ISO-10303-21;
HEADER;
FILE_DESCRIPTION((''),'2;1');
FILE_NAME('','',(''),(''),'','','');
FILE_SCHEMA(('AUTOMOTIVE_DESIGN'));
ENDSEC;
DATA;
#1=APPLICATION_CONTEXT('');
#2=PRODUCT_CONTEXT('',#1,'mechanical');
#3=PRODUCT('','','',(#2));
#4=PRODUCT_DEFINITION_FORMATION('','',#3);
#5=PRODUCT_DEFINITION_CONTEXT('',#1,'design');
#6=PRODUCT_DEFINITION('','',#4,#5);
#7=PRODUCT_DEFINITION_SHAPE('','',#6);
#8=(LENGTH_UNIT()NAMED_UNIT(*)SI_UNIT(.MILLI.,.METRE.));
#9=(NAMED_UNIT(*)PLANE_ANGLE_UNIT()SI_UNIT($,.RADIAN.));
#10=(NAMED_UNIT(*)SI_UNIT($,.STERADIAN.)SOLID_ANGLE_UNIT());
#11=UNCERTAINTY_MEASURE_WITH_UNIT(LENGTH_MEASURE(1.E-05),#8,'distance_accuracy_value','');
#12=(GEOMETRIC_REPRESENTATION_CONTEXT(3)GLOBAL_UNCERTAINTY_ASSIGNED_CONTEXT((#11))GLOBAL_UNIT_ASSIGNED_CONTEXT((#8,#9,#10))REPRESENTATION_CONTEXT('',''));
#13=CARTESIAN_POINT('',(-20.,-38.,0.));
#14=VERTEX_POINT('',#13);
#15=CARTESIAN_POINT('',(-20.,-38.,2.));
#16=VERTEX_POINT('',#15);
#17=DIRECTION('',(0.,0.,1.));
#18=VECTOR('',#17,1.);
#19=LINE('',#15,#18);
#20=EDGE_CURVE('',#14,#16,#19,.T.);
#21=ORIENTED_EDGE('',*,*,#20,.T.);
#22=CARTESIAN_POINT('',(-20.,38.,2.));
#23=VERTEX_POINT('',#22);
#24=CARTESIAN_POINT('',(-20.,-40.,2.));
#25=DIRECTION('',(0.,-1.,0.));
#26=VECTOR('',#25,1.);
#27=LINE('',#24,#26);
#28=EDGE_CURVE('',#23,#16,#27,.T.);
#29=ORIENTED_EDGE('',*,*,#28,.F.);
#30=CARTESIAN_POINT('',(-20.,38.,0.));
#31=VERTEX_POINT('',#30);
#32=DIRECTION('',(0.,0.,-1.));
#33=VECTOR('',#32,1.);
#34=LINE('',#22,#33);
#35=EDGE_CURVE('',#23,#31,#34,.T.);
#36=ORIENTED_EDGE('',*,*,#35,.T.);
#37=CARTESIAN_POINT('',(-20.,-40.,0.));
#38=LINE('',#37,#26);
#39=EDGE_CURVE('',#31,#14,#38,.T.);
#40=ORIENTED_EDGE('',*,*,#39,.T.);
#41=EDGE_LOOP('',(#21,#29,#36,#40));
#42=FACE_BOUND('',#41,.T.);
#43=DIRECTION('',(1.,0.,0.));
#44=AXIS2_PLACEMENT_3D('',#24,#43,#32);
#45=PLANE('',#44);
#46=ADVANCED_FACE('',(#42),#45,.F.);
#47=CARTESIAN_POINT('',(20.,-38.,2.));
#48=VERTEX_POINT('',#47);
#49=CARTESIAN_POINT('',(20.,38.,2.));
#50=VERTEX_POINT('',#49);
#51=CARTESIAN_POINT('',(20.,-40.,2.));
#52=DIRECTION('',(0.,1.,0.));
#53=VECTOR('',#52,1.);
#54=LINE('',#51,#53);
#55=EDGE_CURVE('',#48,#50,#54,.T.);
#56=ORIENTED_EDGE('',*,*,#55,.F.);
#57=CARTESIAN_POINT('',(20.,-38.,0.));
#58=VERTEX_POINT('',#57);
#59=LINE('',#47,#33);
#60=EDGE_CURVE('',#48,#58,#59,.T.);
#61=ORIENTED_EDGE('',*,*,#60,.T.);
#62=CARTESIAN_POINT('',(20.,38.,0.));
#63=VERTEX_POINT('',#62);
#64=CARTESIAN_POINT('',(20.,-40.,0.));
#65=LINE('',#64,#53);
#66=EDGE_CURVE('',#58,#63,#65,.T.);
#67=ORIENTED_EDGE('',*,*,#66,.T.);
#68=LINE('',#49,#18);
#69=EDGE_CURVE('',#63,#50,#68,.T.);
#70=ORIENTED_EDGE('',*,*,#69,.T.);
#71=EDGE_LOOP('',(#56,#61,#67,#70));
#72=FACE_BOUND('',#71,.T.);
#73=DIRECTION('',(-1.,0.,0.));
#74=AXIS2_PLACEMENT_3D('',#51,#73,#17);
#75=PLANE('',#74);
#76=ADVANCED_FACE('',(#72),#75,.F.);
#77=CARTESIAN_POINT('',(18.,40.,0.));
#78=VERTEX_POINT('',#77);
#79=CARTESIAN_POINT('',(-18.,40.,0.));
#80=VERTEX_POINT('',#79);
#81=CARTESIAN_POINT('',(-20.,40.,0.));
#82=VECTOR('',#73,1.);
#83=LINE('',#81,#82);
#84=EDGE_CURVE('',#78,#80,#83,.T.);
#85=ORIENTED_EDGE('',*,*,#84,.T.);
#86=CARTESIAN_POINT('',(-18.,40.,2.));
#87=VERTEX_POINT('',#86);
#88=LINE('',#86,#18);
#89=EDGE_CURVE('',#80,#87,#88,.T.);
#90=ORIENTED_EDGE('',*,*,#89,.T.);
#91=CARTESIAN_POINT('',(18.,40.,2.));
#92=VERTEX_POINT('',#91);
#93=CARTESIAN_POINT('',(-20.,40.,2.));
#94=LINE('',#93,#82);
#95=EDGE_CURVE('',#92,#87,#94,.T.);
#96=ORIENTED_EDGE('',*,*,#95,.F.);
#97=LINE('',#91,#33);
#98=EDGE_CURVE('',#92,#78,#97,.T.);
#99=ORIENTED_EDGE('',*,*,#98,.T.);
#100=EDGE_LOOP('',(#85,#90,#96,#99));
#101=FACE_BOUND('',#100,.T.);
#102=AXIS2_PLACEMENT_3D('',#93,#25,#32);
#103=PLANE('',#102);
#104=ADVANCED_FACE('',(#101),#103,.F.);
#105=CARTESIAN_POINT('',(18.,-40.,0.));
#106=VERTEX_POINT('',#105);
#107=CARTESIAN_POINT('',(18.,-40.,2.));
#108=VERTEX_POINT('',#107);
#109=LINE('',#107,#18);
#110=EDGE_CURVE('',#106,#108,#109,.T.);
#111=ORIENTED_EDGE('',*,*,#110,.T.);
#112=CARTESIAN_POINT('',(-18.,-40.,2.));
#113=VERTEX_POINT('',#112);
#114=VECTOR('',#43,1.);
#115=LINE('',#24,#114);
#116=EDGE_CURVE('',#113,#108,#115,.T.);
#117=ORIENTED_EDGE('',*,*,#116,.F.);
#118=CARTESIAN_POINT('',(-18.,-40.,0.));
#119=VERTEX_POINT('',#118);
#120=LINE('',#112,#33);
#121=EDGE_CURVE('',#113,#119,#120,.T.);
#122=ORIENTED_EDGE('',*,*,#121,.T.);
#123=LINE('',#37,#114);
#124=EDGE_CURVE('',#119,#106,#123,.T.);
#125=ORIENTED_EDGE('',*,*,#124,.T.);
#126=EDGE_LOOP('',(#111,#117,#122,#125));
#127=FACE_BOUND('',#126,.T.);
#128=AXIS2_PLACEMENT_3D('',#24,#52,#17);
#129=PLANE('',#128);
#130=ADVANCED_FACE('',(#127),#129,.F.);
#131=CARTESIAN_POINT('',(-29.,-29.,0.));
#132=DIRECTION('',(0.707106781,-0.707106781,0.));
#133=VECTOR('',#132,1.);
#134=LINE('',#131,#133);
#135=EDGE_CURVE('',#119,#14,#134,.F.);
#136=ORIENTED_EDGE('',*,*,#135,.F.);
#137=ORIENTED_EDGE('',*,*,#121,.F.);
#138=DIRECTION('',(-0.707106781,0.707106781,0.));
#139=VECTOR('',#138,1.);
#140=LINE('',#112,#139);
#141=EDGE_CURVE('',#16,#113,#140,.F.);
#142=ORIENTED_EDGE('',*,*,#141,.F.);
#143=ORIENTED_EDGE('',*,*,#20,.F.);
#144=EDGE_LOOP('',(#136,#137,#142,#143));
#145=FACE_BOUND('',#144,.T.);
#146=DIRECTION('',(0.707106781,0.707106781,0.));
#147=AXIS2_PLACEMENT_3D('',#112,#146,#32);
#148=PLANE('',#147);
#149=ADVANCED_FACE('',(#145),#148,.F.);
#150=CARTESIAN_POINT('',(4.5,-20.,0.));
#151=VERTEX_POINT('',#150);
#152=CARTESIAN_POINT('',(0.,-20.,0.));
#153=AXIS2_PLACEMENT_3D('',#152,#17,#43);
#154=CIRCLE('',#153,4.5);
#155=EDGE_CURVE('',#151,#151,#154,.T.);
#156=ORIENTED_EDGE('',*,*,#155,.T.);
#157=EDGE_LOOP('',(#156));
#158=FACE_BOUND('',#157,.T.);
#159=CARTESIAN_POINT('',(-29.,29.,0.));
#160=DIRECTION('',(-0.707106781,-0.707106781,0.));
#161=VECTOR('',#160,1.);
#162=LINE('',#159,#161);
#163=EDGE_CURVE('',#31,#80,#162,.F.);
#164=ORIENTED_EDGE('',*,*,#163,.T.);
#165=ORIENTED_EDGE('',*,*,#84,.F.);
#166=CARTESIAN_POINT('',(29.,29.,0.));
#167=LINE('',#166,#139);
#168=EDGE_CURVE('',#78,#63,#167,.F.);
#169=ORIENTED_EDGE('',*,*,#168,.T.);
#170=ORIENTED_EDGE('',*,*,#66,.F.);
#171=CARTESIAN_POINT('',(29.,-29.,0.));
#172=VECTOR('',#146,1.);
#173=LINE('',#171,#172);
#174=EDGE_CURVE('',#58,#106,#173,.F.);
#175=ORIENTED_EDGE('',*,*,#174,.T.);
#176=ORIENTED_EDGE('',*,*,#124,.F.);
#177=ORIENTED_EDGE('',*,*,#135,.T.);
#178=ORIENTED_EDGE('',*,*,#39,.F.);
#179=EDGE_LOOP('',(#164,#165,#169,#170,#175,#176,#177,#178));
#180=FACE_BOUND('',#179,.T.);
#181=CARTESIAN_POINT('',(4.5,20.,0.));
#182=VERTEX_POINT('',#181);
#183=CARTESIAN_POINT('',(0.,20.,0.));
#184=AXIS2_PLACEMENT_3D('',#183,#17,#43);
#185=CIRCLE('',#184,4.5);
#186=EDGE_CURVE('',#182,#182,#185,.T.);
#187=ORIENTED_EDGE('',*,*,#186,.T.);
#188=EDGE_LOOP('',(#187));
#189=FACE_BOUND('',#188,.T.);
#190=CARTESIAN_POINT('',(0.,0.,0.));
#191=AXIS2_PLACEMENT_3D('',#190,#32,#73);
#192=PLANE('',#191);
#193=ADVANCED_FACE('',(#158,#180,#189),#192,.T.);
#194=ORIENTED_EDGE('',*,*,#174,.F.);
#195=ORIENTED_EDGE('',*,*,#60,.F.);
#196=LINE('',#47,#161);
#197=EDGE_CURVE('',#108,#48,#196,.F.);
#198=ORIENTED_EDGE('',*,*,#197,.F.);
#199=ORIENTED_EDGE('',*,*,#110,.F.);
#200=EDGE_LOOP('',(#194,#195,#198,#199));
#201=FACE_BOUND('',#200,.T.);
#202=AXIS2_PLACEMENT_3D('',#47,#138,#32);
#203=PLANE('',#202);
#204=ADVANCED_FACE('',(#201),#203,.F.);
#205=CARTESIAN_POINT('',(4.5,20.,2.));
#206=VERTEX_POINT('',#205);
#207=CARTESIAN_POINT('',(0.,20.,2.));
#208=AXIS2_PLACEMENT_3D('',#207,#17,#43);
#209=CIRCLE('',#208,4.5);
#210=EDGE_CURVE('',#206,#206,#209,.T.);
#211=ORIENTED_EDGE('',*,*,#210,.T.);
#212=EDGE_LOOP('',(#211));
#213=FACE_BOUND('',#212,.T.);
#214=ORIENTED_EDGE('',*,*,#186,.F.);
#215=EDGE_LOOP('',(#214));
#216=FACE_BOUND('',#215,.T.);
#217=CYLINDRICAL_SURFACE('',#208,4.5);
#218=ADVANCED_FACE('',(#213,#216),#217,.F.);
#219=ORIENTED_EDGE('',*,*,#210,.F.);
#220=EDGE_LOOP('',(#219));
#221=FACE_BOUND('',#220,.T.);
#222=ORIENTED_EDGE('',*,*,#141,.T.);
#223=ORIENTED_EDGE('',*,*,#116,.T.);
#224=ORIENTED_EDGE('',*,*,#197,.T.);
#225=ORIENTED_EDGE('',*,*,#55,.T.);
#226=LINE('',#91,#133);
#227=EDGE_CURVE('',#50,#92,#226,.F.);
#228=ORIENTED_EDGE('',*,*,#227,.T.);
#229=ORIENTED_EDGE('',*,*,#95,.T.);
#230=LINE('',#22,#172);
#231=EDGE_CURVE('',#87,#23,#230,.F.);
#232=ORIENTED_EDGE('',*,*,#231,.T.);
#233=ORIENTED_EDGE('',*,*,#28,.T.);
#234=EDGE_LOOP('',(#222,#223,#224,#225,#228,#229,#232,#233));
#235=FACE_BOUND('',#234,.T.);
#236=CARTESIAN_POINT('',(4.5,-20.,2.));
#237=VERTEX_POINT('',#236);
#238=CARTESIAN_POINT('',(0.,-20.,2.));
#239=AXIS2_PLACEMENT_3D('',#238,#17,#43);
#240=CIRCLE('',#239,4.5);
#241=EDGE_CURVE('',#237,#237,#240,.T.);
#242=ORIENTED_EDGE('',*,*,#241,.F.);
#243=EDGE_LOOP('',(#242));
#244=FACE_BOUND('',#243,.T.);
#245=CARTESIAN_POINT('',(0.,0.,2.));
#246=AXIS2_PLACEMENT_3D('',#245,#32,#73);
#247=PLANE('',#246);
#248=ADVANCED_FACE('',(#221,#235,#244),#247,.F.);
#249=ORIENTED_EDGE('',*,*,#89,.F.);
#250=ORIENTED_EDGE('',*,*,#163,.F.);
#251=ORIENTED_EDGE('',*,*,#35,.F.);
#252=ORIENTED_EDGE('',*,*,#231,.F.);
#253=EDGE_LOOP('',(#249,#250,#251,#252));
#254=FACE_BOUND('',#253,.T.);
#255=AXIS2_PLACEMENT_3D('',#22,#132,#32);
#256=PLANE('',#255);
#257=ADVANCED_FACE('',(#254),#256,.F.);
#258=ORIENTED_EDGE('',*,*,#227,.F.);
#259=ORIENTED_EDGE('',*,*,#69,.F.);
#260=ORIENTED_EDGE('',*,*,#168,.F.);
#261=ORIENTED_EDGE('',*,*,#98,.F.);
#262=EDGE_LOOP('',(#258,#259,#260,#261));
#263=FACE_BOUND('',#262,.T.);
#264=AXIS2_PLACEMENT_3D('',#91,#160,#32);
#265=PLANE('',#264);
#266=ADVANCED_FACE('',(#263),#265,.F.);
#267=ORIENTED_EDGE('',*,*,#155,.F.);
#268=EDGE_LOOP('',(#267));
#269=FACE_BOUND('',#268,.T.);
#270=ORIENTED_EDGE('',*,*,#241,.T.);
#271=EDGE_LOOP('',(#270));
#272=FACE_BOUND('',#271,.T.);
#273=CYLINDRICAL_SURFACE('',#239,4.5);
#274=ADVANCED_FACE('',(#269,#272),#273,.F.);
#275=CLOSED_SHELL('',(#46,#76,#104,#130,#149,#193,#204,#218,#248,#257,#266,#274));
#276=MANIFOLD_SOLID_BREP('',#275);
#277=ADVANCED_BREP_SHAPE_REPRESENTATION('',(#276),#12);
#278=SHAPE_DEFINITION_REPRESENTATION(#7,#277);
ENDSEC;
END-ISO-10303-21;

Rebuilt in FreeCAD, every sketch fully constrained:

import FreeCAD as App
import Part
import Sketcher
from FreeCAD import Vector
Q = App.Units.Quantity


def edges_at(feature, points):
    """Names of the edges that pass closest to the given points."""
    edges = feature.Shape.Edges
    near = lambda p: min(range(len(edges)), key=lambda i: edges[i].distToShape(Part.Vertex(*p))[0])
    return sorted({f"Edge{near(p) + 1}" for p in points})


def add_polygon(sketch, points):
    """Adds a closed chain of lines whose ends are joined by coincident constraints."""
    first, n = sketch.GeometryCount, len(points)
    for a, b in zip(points, points[1:] + points[:1]):
        sketch.addGeometry(Part.LineSegment(App.Vector(*a, 0), App.Vector(*b, 0)), False)
    for i in range(n):
        sketch.addConstraint(Sketcher.Constraint("Coincident", first + i, 2, first + (i + 1) % n, 1))

doc = App.newDocument("Part")
body = doc.addObject("PartDesign::Body", "Body")

sketch1 = doc.addObject("Sketcher::SketchObject", "Sketch")
body.addObject(sketch1)
sketch1.AttachmentSupport = (doc.XY_Plane, [""])
sketch1.MapMode = "FlatFace"
add_polygon(sketch1, [(-20, 40), (-20, -40), (20, -40), (20, 40)])
sketch1.addConstraint([
    Sketcher.Constraint("Vertical", 0),
    Sketcher.Constraint("Horizontal", 1),
    Sketcher.Constraint("Vertical", 2),
    Sketcher.Constraint("Horizontal", 3),
    Sketcher.Constraint("Symmetric", 0, 2, 2, 2, -1, 1),
    Sketcher.Constraint("DistanceX", 1, 1, 1, 2, Q("40 mm")),
    Sketcher.Constraint("DistanceY", 0, 2, 0, 1, Q("80 mm")),
])
pad1 = doc.addObject("PartDesign::Pad", "Pad")
body.addObject(pad1)
pad1.Profile = sketch1
pad1.Length = 2
doc.recompute()

chamfer = doc.addObject("PartDesign::Chamfer", "Chamfer")
body.addObject(chamfer)
chamfer.Base = (pad1, edges_at(pad1, [
    (20, -40, 1),
    (-20, -40, 1),
    (-20, 40, 1),
    (20, 40, 1),
]))
chamfer.Size = 2

sketch2 = doc.addObject("Sketcher::SketchObject", "Sketch001")
body.addObject(sketch2)
sketch2.AttachmentSupport = (doc.XY_Plane, [""])
sketch2.MapMode = "FlatFace"
sketch2.AttachmentOffset = App.Placement(Vector(0, 0, 2), App.Rotation())
sketch2.addGeometry([
    Part.Circle(Vector(0, -20, 0), Vector(0, 0, 1), 4.5),
    Part.Circle(Vector(0, 20, 0), Vector(0, 0, 1), 4.5),
], False)
sketch2.addConstraint([
    Sketcher.Constraint("Equal", 0, 1),
    Sketcher.Constraint("Symmetric", 0, 3, 1, 3, -1, 1),
    Sketcher.Constraint("PointOnObject", 0, 3, -2),
    Sketcher.Constraint("Diameter", 0, Q("9 mm")),
    Sketcher.Constraint("DistanceY", 0, 3, -1, 1, Q("20 mm")),
])
doc.recompute()
hole = doc.addObject("PartDesign::Hole", "Hole")
body.addObject(hole)
hole.Profile = sketch2
hole.ThreadType = "None"
hole.Diameter = 9
hole.DepthType = "ThroughAll"

doc.recompute()
